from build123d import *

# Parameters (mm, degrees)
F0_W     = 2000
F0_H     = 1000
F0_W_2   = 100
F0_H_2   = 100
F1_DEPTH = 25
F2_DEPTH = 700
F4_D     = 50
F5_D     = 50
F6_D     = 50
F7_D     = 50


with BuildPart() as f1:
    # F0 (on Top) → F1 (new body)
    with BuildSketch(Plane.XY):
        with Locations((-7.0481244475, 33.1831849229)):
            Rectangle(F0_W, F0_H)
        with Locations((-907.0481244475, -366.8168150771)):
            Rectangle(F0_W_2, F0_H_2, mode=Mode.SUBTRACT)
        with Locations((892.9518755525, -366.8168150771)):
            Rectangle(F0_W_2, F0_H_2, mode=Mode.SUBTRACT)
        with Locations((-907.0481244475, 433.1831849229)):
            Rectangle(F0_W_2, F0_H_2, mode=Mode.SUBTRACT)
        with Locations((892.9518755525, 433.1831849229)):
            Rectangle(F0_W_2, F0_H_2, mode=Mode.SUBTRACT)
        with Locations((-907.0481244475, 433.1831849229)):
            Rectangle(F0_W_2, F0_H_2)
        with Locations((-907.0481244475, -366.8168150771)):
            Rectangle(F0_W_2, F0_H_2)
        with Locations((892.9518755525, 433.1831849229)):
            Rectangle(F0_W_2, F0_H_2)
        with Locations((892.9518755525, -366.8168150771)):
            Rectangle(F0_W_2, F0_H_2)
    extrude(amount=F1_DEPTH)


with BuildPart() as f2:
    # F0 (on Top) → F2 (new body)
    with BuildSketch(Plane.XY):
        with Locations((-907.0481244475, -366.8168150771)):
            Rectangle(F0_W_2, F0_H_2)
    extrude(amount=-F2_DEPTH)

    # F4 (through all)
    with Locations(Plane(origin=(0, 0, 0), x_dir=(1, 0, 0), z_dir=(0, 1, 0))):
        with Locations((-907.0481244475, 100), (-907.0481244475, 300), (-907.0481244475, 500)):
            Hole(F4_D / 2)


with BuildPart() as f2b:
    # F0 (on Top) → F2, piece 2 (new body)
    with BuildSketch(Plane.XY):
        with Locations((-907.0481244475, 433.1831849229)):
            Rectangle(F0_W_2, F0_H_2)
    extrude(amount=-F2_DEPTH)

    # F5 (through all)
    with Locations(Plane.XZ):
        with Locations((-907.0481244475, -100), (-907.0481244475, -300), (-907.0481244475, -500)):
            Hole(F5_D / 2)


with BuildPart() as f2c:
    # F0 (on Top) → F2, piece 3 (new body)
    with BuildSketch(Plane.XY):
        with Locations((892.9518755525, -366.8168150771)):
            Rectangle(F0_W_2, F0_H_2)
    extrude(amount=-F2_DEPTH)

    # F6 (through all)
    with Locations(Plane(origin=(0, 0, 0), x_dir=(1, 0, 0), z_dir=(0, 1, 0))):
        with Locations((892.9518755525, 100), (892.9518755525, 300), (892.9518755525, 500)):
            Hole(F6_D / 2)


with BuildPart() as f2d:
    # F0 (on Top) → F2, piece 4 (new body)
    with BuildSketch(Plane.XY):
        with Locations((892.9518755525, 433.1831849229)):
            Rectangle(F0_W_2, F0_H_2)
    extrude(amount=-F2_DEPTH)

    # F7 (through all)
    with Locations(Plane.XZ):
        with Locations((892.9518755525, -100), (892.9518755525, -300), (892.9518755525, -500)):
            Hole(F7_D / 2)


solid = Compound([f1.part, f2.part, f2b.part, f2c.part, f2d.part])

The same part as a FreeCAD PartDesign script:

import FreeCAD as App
import Part
import Sketcher
from FreeCAD import Vector


def add_polygon(sketch, points):
    """Adds a closed chain of lines whose ends are joined by coincident constraints."""
    first, n = sketch.GeometryCount, len(points)
    for a, b in zip(points, points[1:] + points[:1]):
        sketch.addGeometry(Part.LineSegment(App.Vector(*a, 0), App.Vector(*b, 0)), False)
    for i in range(n):
        sketch.addConstraint(Sketcher.Constraint("Coincident", first + i, 2, first + (i + 1) % n, 1))

doc = App.newDocument("Part")
body = doc.addObject("PartDesign::Body", "Body")

sketch1 = body.newObject("Sketcher::SketchObject", "Sketch")
sketch1.AttachmentSupport = (doc.getObject("XY_Plane"), [""])
sketch1.MapMode = "FlatFace"
add_polygon(sketch1, [(-1007.048124, 533.183185), (-1007.048124, -466.816815), (992.951876, -466.816815), (992.951876, 533.183185)])
sketch1.addConstraint(Sketcher.Constraint("Vertical", 0))
sketch1.addConstraint(Sketcher.Constraint("Horizontal", 1))
sketch1.addConstraint(Sketcher.Constraint("Vertical", 2))
sketch1.addConstraint(Sketcher.Constraint("Horizontal", 3))
sketch1.addConstraint(Sketcher.Constraint("DistanceX", 1, 1, 1, 2, 2000.0))
sketch1.addConstraint(Sketcher.Constraint("DistanceY", 0, 2, 0, 1, 1000.0))
sketch1.addConstraint(Sketcher.Constraint("DistanceX", 0, 2, -1, 1, 1007.048124))
sketch1.addConstraint(Sketcher.Constraint("DistanceY", 0, 2, -1, 1, 466.816815))
pad1 = body.newObject("PartDesign::Pad", "Pad")
pad1.Profile = sketch1
pad1.Length = 25
body2 = doc.addObject("PartDesign::Body", "Body001")

sketch2 = body2.newObject("Sketcher::SketchObject", "Sketch001")
sketch2.AttachmentSupport = (doc.getObject("XY_Plane001"), [""])
sketch2.MapMode = "FlatFace"
add_polygon(sketch2, [(-957.048124, -316.816815), (-957.048124, -416.816815), (-857.048124, -416.816815), (-857.048124, -316.816815)])
sketch2.addConstraint(Sketcher.Constraint("Vertical", 0))
sketch2.addConstraint(Sketcher.Constraint("Horizontal", 1))
sketch2.addConstraint(Sketcher.Constraint("Vertical", 2))
sketch2.addConstraint(Sketcher.Constraint("Horizontal", 3))
sketch2.addConstraint(Sketcher.Constraint("Equal", 3, 0))
sketch2.addConstraint(Sketcher.Constraint("DistanceX", 1, 1, 1, 2, 100.0))
sketch2.addConstraint(Sketcher.Constraint("DistanceX", 0, 2, -1, 1, 957.048124))
sketch2.addConstraint(Sketcher.Constraint("DistanceY", 0, 2, -1, 1, 416.816815))
pad2 = body2.newObject("PartDesign::Pad", "Pad001")
pad2.Profile = sketch2
pad2.Length = 700
pad2.Reversed = True

sketch3 = body2.newObject("Sketcher::SketchObject", "Sketch002")
sketch3.AttachmentSupport = (doc.getObject("XZ_Plane001"), [""])
sketch3.MapMode = "FlatFace"
sketch3.addGeometry(Part.Circle(Vector(-907.048124, -100, 0), Vector(0, 0, 1), 25), False)
sketch3.addGeometry(Part.Circle(Vector(-907.048124, -300, 0), Vector(0, 0, 1), 25), False)
sketch3.addGeometry(Part.Circle(Vector(-907.048124, -500, 0), Vector(0, 0, 1), 25), False)
sketch3.addConstraint(Sketcher.Constraint("Equal", 0, 1))
sketch3.addConstraint(Sketcher.Constraint("Equal", 1, 2))
sketch3.addConstraint(Sketcher.Constraint("Vertical", 0, 3, 1, 3))
sketch3.addConstraint(Sketcher.Constraint("Vertical", 1, 3, 2, 3))
sketch3.addConstraint(Sketcher.Constraint("Diameter", 0, 50.0))
sketch3.addConstraint(Sketcher.Constraint("DistanceY", 0, 3, -1, 1, 100.0))
sketch3.addConstraint(Sketcher.Constraint("DistanceY", 1, 3, -1, 1, 300.0))
sketch3.addConstraint(Sketcher.Constraint("DistanceY", 2, 3, -1, 1, 500.0))
sketch3.addConstraint(Sketcher.Constraint("DistanceX", 0, 3, -1, 1, 907.048124))
doc.recompute()
hole = body2.newObject("PartDesign::Hole", "Hole")
hole.Profile = sketch3
hole.ThreadType = "None"
hole.Diameter = 50
hole.DepthType = "ThroughAll"
hole.Reversed = True
body3 = doc.addObject("PartDesign::Body", "Body002")

sketch4 = body3.newObject("Sketcher::SketchObject", "Sketch003")
sketch4.AttachmentSupport = (doc.getObject("XY_Plane002"), [""])
sketch4.MapMode = "FlatFace"
add_polygon(sketch4, [(-957.048124, 483.183185), (-957.048124, 383.183185), (-857.048124, 383.183185), (-857.048124, 483.183185)])
sketch4.addConstraint(Sketcher.Constraint("Vertical", 0))
sketch4.addConstraint(Sketcher.Constraint("Horizontal", 1))
sketch4.addConstraint(Sketcher.Constraint("Vertical", 2))
sketch4.addConstraint(Sketcher.Constraint("Horizontal", 3))
sketch4.addConstraint(Sketcher.Constraint("Equal", 3, 0))
sketch4.addConstraint(Sketcher.Constraint("DistanceX", 1, 1, 1, 2, 100.0))
sketch4.addConstraint(Sketcher.Constraint("DistanceX", 0, 2, -1, 1, 957.048124))
sketch4.addConstraint(Sketcher.Constraint("DistanceY", -1, 1, 0, 2, 383.183185))
pad3 = body3.newObject("PartDesign::Pad", "Pad002")
pad3.Profile = sketch4
pad3.Length = 700
pad3.Reversed = True

sketch5 = body3.newObject("Sketcher::SketchObject", "Sketch004")
sketch5.AttachmentSupport = (doc.getObject("XZ_Plane002"), [""])
sketch5.MapMode = "FlatFace"
sketch5.addGeometry(Part.Circle(Vector(-907.048124, -100, 0), Vector(0, 0, 1), 25), False)
sketch5.addGeometry(Part.Circle(Vector(-907.048124, -300, 0), Vector(0, 0, 1), 25), False)
sketch5.addGeometry(Part.Circle(Vector(-907.048124, -500, 0), Vector(0, 0, 1), 25), False)
sketch5.addConstraint(Sketcher.Constraint("Equal", 0, 1))
sketch5.addConstraint(Sketcher.Constraint("Equal", 1, 2))
sketch5.addConstraint(Sketcher.Constraint("Vertical", 0, 3, 1, 3))
sketch5.addConstraint(Sketcher.Constraint("Vertical", 1, 3, 2, 3))
sketch5.addConstraint(Sketcher.Constraint("Diameter", 0, 50.0))
sketch5.addConstraint(Sketcher.Constraint("DistanceY", 0, 3, -1, 1, 100.0))
sketch5.addConstraint(Sketcher.Constraint("DistanceY", 1, 3, -1, 1, 300.0))
sketch5.addConstraint(Sketcher.Constraint("DistanceY", 2, 3, -1, 1, 500.0))
sketch5.addConstraint(Sketcher.Constraint("DistanceX", 0, 3, -1, 1, 907.048124))
doc.recompute()
hole2 = body3.newObject("PartDesign::Hole", "Hole001")
hole2.Profile = sketch5
hole2.ThreadType = "None"
hole2.Diameter = 50
hole2.DepthType = "ThroughAll"
body4 = doc.addObject("PartDesign::Body", "Body003")

sketch6 = body4.newObject("Sketcher::SketchObject", "Sketch005")
sketch6.AttachmentSupport = (doc.getObject("XY_Plane003"), [""])
sketch6.MapMode = "FlatFace"
add_polygon(sketch6, [(842.951876, -316.816815), (842.951876, -416.816815), (942.951876, -416.816815), (942.951876, -316.816815)])
sketch6.addConstraint(Sketcher.Constraint("Vertical", 0))
sketch6.addConstraint(Sketcher.Constraint("Horizontal", 1))
sketch6.addConstraint(Sketcher.Constraint("Vertical", 2))
sketch6.addConstraint(Sketcher.Constraint("Horizontal", 3))
sketch6.addConstraint(Sketcher.Constraint("Equal", 3, 0))
sketch6.addConstraint(Sketcher.Constraint("DistanceX", 1, 1, 1, 2, 100.0))
sketch6.addConstraint(Sketcher.Constraint("DistanceX", -1, 1, 0, 2, 842.951876))
sketch6.addConstraint(Sketcher.Constraint("DistanceY", 0, 2, -1, 1, 416.816815))
pad4 = body4.newObject("PartDesign::Pad", "Pad003")
pad4.Profile = sketch6
pad4.Length = 700
pad4.Reversed = True

sketch7 = body4.newObject("Sketcher::SketchObject", "Sketch006")
sketch7.AttachmentSupport = (doc.getObject("XZ_Plane003"), [""])
sketch7.MapMode = "FlatFace"
sketch7.addGeometry(Part.Circle(Vector(892.951876, -100, 0), Vector(0, 0, 1), 25), False)
sketch7.addGeometry(Part.Circle(Vector(892.951876, -300, 0), Vector(0, 0, 1), 25), False)
sketch7.addGeometry(Part.Circle(Vector(892.951876, -500, 0), Vector(0, 0, 1), 25), False)
sketch7.addConstraint(Sketcher.Constraint("Equal", 0, 1))
sketch7.addConstraint(Sketcher.Constraint("Equal", 1, 2))
sketch7.addConstraint(Sketcher.Constraint("Vertical", 0, 3, 1, 3))
sketch7.addConstraint(Sketcher.Constraint("Vertical", 1, 3, 2, 3))
sketch7.addConstraint(Sketcher.Constraint("Diameter", 0, 50.0))
sketch7.addConstraint(Sketcher.Constraint("DistanceY", 0, 3, -1, 1, 100.0))
sketch7.addConstraint(Sketcher.Constraint("DistanceY", 1, 3, -1, 1, 300.0))
sketch7.addConstraint(Sketcher.Constraint("DistanceY", 2, 3, -1, 1, 500.0))
sketch7.addConstraint(Sketcher.Constraint("DistanceX", -1, 1, 0, 3, 892.951876))
doc.recompute()
hole3 = body4.newObject("PartDesign::Hole", "Hole002")
hole3.Profile = sketch7
hole3.ThreadType = "None"
hole3.Diameter = 50
hole3.DepthType = "ThroughAll"
hole3.Reversed = True
body5 = doc.addObject("PartDesign::Body", "Body004")

sketch8 = body5.newObject("Sketcher::SketchObject", "Sketch007")
sketch8.AttachmentSupport = (doc.getObject("XY_Plane004"), [""])
sketch8.MapMode = "FlatFace"
add_polygon(sketch8, [(842.951876, 483.183185), (842.951876, 383.183185), (942.951876, 383.183185), (942.951876, 483.183185)])
sketch8.addConstraint(Sketcher.Constraint("Vertical", 0))
sketch8.addConstraint(Sketcher.Constraint("Horizontal", 1))
sketch8.addConstraint(Sketcher.Constraint("Vertical", 2))
sketch8.addConstraint(Sketcher.Constraint("Horizontal", 3))
sketch8.addConstraint(Sketcher.Constraint("Equal", 3, 0))
sketch8.addConstraint(Sketcher.Constraint("DistanceX", 1, 1, 1, 2, 100.0))
sketch8.addConstraint(Sketcher.Constraint("DistanceX", -1, 1, 0, 2, 842.951876))
sketch8.addConstraint(Sketcher.Constraint("DistanceY", -1, 1, 0, 2, 383.183185))
pad5 = body5.newObject("PartDesign::Pad", "Pad004")
pad5.Profile = sketch8
pad5.Length = 700
pad5.Reversed = True

sketch9 = body5.newObject("Sketcher::SketchObject", "Sketch008")
sketch9.AttachmentSupport = (doc.getObject("XZ_Plane004"), [""])
sketch9.MapMode = "FlatFace"
sketch9.addGeometry(Part.Circle(Vector(892.951876, -100, 0), Vector(0, 0, 1), 25), False)
sketch9.addGeometry(Part.Circle(Vector(892.951876, -300, 0), Vector(0, 0, 1), 25), False)
sketch9.addGeometry(Part.Circle(Vector(892.951876, -500, 0), Vector(0, 0, 1), 25), False)
sketch9.addConstraint(Sketcher.Constraint("Equal", 0, 1))
sketch9.addConstraint(Sketcher.Constraint("Equal", 1, 2))
sketch9.addConstraint(Sketcher.Constraint("Vertical", 0, 3, 1, 3))
sketch9.addConstraint(Sketcher.Constraint("Vertical", 1, 3, 2, 3))
sketch9.addConstraint(Sketcher.Constraint("Diameter", 0, 50.0))
sketch9.addConstraint(Sketcher.Constraint("DistanceY", 0, 3, -1, 1, 100.0))
sketch9.addConstraint(Sketcher.Constraint("DistanceY", 1, 3, -1, 1, 300.0))
sketch9.addConstraint(Sketcher.Constraint("DistanceY", 2, 3, -1, 1, 500.0))
sketch9.addConstraint(Sketcher.Constraint("DistanceX", -1, 1, 0, 3, 892.951876))
doc.recompute()
hole4 = body5.newObject("PartDesign::Hole", "Hole003")
hole4.Profile = sketch9
hole4.ThreadType = "None"
hole4.Diameter = 50
hole4.DepthType = "ThroughAll"

doc.recompute()
